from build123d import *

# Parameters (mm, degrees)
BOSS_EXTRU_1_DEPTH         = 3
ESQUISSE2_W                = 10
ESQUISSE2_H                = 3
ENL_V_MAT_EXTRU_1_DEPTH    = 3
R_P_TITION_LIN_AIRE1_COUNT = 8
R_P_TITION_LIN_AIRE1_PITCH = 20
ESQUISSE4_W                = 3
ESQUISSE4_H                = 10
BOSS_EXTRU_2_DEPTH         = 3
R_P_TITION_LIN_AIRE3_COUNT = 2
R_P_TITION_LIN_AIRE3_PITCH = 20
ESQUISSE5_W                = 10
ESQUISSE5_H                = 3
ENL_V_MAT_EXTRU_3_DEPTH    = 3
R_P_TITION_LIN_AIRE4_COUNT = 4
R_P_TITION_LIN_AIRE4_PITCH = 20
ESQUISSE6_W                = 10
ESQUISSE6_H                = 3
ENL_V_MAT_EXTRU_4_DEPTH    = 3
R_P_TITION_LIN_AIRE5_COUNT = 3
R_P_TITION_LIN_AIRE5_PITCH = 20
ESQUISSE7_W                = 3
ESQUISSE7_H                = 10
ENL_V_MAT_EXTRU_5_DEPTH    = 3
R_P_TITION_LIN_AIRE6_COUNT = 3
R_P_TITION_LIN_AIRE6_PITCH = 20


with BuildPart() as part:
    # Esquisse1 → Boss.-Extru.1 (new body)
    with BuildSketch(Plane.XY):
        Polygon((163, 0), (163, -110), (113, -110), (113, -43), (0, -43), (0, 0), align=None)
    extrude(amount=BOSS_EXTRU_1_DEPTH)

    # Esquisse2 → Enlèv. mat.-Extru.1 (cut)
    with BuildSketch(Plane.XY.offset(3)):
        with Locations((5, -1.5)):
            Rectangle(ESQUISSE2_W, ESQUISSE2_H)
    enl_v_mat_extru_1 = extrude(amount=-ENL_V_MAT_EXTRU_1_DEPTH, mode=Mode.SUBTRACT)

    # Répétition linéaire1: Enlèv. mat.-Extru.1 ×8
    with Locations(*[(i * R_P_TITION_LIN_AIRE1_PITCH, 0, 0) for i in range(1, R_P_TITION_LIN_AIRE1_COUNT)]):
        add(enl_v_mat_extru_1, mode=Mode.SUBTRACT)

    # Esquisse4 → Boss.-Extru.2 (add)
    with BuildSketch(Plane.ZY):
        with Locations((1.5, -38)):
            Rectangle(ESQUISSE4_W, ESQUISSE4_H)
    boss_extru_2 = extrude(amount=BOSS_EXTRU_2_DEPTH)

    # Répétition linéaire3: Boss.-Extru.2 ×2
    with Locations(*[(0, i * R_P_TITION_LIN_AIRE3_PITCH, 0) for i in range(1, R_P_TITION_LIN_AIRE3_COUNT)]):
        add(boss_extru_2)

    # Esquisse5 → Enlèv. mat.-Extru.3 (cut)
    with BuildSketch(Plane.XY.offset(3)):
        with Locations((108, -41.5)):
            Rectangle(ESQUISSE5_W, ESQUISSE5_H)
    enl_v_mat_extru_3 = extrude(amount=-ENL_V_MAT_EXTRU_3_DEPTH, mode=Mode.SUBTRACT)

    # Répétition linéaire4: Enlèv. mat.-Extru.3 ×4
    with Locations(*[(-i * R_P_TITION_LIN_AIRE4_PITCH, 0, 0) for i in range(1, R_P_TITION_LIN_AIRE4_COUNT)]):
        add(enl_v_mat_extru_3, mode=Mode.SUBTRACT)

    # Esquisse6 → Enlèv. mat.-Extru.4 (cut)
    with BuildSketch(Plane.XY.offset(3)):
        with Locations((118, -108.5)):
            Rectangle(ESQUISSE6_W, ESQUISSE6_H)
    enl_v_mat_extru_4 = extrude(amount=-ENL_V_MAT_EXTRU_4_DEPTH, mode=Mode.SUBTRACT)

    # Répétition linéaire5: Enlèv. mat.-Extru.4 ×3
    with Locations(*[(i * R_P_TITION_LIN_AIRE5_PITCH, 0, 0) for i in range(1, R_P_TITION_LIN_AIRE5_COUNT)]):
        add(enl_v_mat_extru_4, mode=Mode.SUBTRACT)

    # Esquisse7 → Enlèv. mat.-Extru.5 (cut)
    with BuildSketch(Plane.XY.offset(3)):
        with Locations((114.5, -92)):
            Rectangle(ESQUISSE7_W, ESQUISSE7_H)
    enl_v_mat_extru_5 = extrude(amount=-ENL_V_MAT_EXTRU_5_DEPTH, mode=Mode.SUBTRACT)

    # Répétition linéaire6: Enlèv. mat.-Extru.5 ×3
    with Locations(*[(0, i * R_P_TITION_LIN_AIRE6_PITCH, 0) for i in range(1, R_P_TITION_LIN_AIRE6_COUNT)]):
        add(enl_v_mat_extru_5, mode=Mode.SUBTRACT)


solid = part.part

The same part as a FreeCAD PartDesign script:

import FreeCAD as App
import Part
import Sketcher
from FreeCAD import Vector


def add_polygon(sketch, points):
    """Adds a closed chain of lines whose ends are joined by coincident constraints."""
    first, n = sketch.GeometryCount, len(points)
    for a, b in zip(points, points[1:] + points[:1]):
        sketch.addGeometry(Part.LineSegment(App.Vector(*a, 0), App.Vector(*b, 0)), False)
    for i in range(n):
        sketch.addConstraint(Sketcher.Constraint("Coincident", first + i, 2, first + (i + 1) % n, 1))

doc = App.newDocument("Part")
body = doc.addObject("PartDesign::Body", "Body")

sketch1 = body.newObject("Sketcher::SketchObject", "Sketch")
sketch1.AttachmentSupport = (doc.getObject("XY_Plane"), [""])
sketch1.MapMode = "FlatFace"
add_polygon(sketch1, [(163, -110), (163, 0), (0, 0), (0, -43), (113, -43), (113, -110)])
sketch1.addConstraint(Sketcher.Constraint("Vertical", 0))
sketch1.addConstraint(Sketcher.Constraint("Horizontal", 1))
sketch1.addConstraint(Sketcher.Constraint("Vertical", 2))
sketch1.addConstraint(Sketcher.Constraint("Horizontal", 3))
sketch1.addConstraint(Sketcher.Constraint("Vertical", 4))
sketch1.addConstraint(Sketcher.Constraint("Horizontal", 5))
sketch1.addConstraint(Sketcher.Constraint("Coincident", 1, 2, -1, 1))
sketch1.addConstraint(Sketcher.Constraint("DistanceX", 1, 2, 1, 1, 163.0))
sketch1.addConstraint(Sketcher.Constraint("DistanceX", 3, 1, 3, 2, 113.0))
sketch1.addConstraint(Sketcher.Constraint("DistanceY", 0, 1, 0, 2, 110.0))
sketch1.addConstraint(Sketcher.Constraint("DistanceY", 2, 2, 2, 1, 43.0))
pad1 = body.newObject("PartDesign::Pad", "Pad")
pad1.Profile = sketch1
pad1.Length = 3

sketch2 = body.newObject("Sketcher::SketchObject", "Sketch001")
sketch2.AttachmentSupport = (doc.getObject("XY_Plane"), [""])
sketch2.MapMode = "FlatFace"
sketch2.AttachmentOffset = App.Placement(Vector(0, 0, 3), App.Rotation())
add_polygon(sketch2, [(0, 0), (0, -3), (10, -3), (10, 0)])
sketch2.addConstraint(Sketcher.Constraint("Vertical", 0))
sketch2.addConstraint(Sketcher.Constraint("Horizontal", 1))
sketch2.addConstraint(Sketcher.Constraint("Vertical", 2))
sketch2.addConstraint(Sketcher.Constraint("Horizontal", 3))
sketch2.addConstraint(Sketcher.Constraint("Coincident", 3, 2, -1, 1))
sketch2.addConstraint(Sketcher.Constraint("DistanceX", 1, 1, 1, 2, 10.0))
sketch2.addConstraint(Sketcher.Constraint("DistanceY", 0, 2, 0, 1, 3.0))
pocket1 = body.newObject("PartDesign::Pocket", "Pocket")
pocket1.Profile = sketch2
pocket1.Length = 3
doc.recompute()

linearpattern = body.newObject("PartDesign::LinearPattern", "LinearPattern")
linearpattern.Originals = [pocket1]
linearpattern.Direction = (doc.getObject("X_Axis"), [""])
linearpattern.Mode = "offset"
linearpattern.Offset = 20
linearpattern.Occurrences = 8
body.Tip = linearpattern

sketch3 = body.newObject("Sketcher::SketchObject", "Sketch002")
sketch3.AttachmentSupport = (doc.getObject("YZ_Plane"), [""])
sketch3.MapMode = "FlatFace"
add_polygon(sketch3, [(-33, 0), (-43, 0), (-43, 3), (-33, 3)])
sketch3.addConstraint(Sketcher.Constraint("Horizontal", 0))
sketch3.addConstraint(Sketcher.Constraint("Vertical", 1))
sketch3.addConstraint(Sketcher.Constraint("Horizontal", 2))
sketch3.addConstraint(Sketcher.Constraint("Vertical", 3))
sketch3.addConstraint(Sketcher.Constraint("PointOnObject", 0, 2, -1))
sketch3.addConstraint(Sketcher.Constraint("DistanceX", 0, 2, 0, 1, 10.0))
sketch3.addConstraint(Sketcher.Constraint("DistanceY", 1, 1, 1, 2, 3.0))
sketch3.addConstraint(Sketcher.Constraint("DistanceX", 0, 2, -1, 1, 43.0))
pad2 = body.newObject("PartDesign::Pad", "Pad001")
pad2.Profile = sketch3
pad2.Length = 3
pad2.Reversed = True
doc.recompute()

linearpattern2 = body.newObject("PartDesign::LinearPattern", "LinearPattern001")
linearpattern2.Originals = [pad2]
linearpattern2.Direction = (doc.getObject("Y_Axis"), [""])
linearpattern2.Mode = "offset"
linearpattern2.Offset = 20
linearpattern2.Occurrences = 2
body.Tip = linearpattern2

sketch4 = body.newObject("Sketcher::SketchObject", "Sketch003")
sketch4.AttachmentSupport = (doc.getObject("XY_Plane"), [""])
sketch4.MapMode = "FlatFace"
sketch4.AttachmentOffset = App.Placement(Vector(0, 0, 3), App.Rotation())
add_polygon(sketch4, [(103, -40), (103, -43), (113, -43), (113, -40)])
sketch4.addConstraint(Sketcher.Constraint("Vertical", 0))
sketch4.addConstraint(Sketcher.Constraint("Horizontal", 1))
sketch4.addConstraint(Sketcher.Constraint("Vertical", 2))
sketch4.addConstraint(Sketcher.Constraint("Horizontal", 3))
sketch4.addConstraint(Sketcher.Constraint("DistanceX", 1, 1, 1, 2, 10.0))
sketch4.addConstraint(Sketcher.Constraint("DistanceY", 0, 2, 0, 1, 3.0))
sketch4.addConstraint(Sketcher.Constraint("DistanceX", -1, 1, 0, 2, 103.0))
sketch4.addConstraint(Sketcher.Constraint("DistanceY", 0, 2, -1, 1, 43.0))
pocket2 = body.newObject("PartDesign::Pocket", "Pocket001")
pocket2.Profile = sketch4
pocket2.Length = 3
doc.recompute()

linearpattern3 = body.newObject("PartDesign::LinearPattern", "LinearPattern002")
linearpattern3.Originals = [pocket2]
linearpattern3.Direction = (doc.getObject("X_Axis"), [""])
linearpattern3.Mode = "offset"
linearpattern3.Offset = 20
linearpattern3.Occurrences = 4
linearpattern3.Reversed = True
body.Tip = linearpattern3

sketch5 = body.newObject("Sketcher::SketchObject", "Sketch004")
sketch5.AttachmentSupport = (doc.getObject("XY_Plane"), [""])
sketch5.MapMode = "FlatFace"
sketch5.AttachmentOffset = App.Placement(Vector(0, 0, 3), App.Rotation())
add_polygon(sketch5, [(113, -107), (113, -110), (123, -110), (123, -107)])
sketch5.addConstraint(Sketcher.Constraint("Vertical", 0))
sketch5.addConstraint(Sketcher.Constraint("Horizontal", 1))
sketch5.addConstraint(Sketcher.Constraint("Vertical", 2))
sketch5.addConstraint(Sketcher.Constraint("Horizontal", 3))
sketch5.addConstraint(Sketcher.Constraint("DistanceX", 1, 1, 1, 2, 10.0))
sketch5.addConstraint(Sketcher.Constraint("DistanceY", 0, 2, 0, 1, 3.0))
sketch5.addConstraint(Sketcher.Constraint("DistanceX", -1, 1, 0, 2, 113.0))
sketch5.addConstraint(Sketcher.Constraint("DistanceY", 0, 2, -1, 1, 110.0))
pocket3 = body.newObject("PartDesign::Pocket", "Pocket002")
pocket3.Profile = sketch5
pocket3.Length = 3
doc.recompute()

linearpattern4 = body.newObject("PartDesign::LinearPattern", "LinearPattern003")
linearpattern4.Originals = [pocket3]
linearpattern4.Direction = (doc.getObject("X_Axis"), [""])
linearpattern4.Mode = "offset"
linearpattern4.Offset = 20
linearpattern4.Occurrences = 3
body.Tip = linearpattern4

sketch6 = body.newObject("Sketcher::SketchObject", "Sketch005")
sketch6.AttachmentSupport = (doc.getObject("XY_Plane"), [""])
sketch6.MapMode = "FlatFace"
sketch6.AttachmentOffset = App.Placement(Vector(0, 0, 3), App.Rotation())
add_polygon(sketch6, [(113, -87), (113, -97), (116, -97), (116, -87)])
sketch6.addConstraint(Sketcher.Constraint("Vertical", 0))
sketch6.addConstraint(Sketcher.Constraint("Horizontal", 1))
sketch6.addConstraint(Sketcher.Constraint("Vertical", 2))
sketch6.addConstraint(Sketcher.Constraint("Horizontal", 3))
sketch6.addConstraint(Sketcher.Constraint("DistanceX", 1, 1, 1, 2, 3.0))
sketch6.addConstraint(Sketcher.Constraint("DistanceY", 0, 2, 0, 1, 10.0))
sketch6.addConstraint(Sketcher.Constraint("DistanceX", -1, 1, 0, 2, 113.0))
sketch6.addConstraint(Sketcher.Constraint("DistanceY", 0, 2, -1, 1, 97.0))
pocket4 = body.newObject("PartDesign::Pocket", "Pocket003")
pocket4.Profile = sketch6
pocket4.Length = 3
doc.recompute()

linearpattern5 = body.newObject("PartDesign::LinearPattern", "LinearPattern004")
linearpattern5.Originals = [pocket4]
linearpattern5.Direction = (doc.getObject("Y_Axis"), [""])
linearpattern5.Mode = "offset"
linearpattern5.Offset = 20
linearpattern5.Occurrences = 3
body.Tip = linearpattern5

doc.recompute()
